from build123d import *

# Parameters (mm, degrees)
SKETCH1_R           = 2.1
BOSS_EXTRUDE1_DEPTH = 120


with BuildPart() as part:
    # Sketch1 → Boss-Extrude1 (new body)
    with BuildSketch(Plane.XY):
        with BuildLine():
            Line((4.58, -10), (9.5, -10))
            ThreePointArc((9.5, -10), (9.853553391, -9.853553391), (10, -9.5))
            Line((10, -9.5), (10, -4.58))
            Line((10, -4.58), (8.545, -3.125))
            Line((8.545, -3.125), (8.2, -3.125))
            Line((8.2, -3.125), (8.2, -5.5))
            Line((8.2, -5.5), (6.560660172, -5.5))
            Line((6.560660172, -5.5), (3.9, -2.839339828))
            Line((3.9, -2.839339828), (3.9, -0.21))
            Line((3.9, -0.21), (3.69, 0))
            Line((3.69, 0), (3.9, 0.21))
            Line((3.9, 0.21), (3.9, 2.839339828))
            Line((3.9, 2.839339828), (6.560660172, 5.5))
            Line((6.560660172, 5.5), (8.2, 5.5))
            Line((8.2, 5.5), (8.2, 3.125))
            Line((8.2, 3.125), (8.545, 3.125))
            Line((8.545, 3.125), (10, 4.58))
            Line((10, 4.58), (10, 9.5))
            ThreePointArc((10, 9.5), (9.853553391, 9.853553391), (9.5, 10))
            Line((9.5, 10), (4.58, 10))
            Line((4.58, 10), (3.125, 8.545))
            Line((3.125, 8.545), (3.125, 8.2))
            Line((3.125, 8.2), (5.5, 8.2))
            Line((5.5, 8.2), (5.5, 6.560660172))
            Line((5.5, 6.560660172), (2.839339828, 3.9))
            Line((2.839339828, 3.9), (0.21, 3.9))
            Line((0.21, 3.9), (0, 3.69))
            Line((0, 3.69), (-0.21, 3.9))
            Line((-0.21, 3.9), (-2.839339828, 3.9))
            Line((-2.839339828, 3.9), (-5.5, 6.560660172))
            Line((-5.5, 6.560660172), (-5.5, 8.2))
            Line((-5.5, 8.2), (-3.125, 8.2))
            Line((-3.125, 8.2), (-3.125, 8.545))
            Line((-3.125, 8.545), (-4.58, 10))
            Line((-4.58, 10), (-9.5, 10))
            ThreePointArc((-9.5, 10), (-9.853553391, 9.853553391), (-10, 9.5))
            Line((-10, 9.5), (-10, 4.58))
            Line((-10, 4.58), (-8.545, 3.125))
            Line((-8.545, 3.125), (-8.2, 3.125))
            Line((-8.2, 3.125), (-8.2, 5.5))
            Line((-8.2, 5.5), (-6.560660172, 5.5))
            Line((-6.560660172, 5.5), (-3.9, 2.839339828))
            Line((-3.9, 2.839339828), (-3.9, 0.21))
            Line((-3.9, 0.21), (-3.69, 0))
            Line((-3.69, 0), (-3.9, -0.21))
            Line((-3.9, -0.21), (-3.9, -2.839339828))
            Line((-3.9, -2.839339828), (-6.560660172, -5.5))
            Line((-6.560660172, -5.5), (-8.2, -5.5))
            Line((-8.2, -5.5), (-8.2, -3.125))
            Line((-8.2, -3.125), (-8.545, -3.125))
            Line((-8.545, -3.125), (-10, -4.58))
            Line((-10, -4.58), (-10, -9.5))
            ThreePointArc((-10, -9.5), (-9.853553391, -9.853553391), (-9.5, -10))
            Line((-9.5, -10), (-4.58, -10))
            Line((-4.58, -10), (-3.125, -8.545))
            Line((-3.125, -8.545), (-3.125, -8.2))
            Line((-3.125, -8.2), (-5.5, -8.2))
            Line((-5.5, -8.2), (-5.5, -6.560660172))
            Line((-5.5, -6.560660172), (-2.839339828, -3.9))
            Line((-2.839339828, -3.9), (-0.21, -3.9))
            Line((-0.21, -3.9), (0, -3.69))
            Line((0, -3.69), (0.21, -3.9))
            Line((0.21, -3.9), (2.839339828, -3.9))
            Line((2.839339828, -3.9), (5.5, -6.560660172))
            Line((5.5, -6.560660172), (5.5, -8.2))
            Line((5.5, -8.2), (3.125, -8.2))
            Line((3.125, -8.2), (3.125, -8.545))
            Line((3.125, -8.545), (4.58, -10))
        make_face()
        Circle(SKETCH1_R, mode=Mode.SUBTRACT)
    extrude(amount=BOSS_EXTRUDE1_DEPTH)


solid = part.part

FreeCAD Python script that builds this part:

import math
import FreeCAD as App
import Part
import Sketcher
Q = App.Units.Quantity

doc = App.newDocument("Part")
body = doc.addObject("PartDesign::Body", "Body")

# Sketch on XY plane
sketch1 = body.newObject("Sketcher::SketchObject", "Sketch")
sketch1.AttachmentSupport = (doc.getObject("XY_Plane"), [""])
sketch1.MapMode = "FlatFace"
sketch1.addGeometry(Part.LineSegment(App.Vector(4.58, -10, 0), App.Vector(9.5, -10, 0)), False)
sketch1.addGeometry(Part.ArcOfCircle(Part.Circle(App.Vector(9.5, -9.5, 0), App.Vector(0, 0, 1), 0.5), math.radians(-90), math.radians(0)), False)
sketch1.addGeometry(Part.LineSegment(App.Vector(10, -9.5, 0), App.Vector(10, -4.58, 0)), False)
sketch1.addGeometry(Part.LineSegment(App.Vector(10, -4.58, 0), App.Vector(8.545, -3.125, 0)), False)
sketch1.addGeometry(Part.LineSegment(App.Vector(8.545, -3.125, 0), App.Vector(8.2, -3.125, 0)), False)
sketch1.addGeometry(Part.LineSegment(App.Vector(8.2, -3.125, 0), App.Vector(8.2, -5.5, 0)), False)
sketch1.addGeometry(Part.LineSegment(App.Vector(8.2, -5.5, 0), App.Vector(6.56066, -5.5, 0)), False)
sketch1.addGeometry(Part.LineSegment(App.Vector(6.56066, -5.5, 0), App.Vector(3.9, -2.83934, 0)), False)
sketch1.addGeometry(Part.LineSegment(App.Vector(3.9, -2.83934, 0), App.Vector(3.9, -0.21, 0)), False)
sketch1.addGeometry(Part.LineSegment(App.Vector(3.9, -0.21, 0), App.Vector(3.69, 0, 0)), False)
sketch1.addGeometry(Part.LineSegment(App.Vector(3.69, 0, 0), App.Vector(3.9, 0.21, 0)), False)
sketch1.addGeometry(Part.LineSegment(App.Vector(3.9, 0.21, 0), App.Vector(3.9, 2.83934, 0)), False)
sketch1.addGeometry(Part.LineSegment(App.Vector(3.9, 2.83934, 0), App.Vector(6.56066, 5.5, 0)), False)
sketch1.addGeometry(Part.LineSegment(App.Vector(6.56066, 5.5, 0), App.Vector(8.2, 5.5, 0)), False)
sketch1.addGeometry(Part.LineSegment(App.Vector(8.2, 5.5, 0), App.Vector(8.2, 3.125, 0)), False)
sketch1.addGeometry(Part.LineSegment(App.Vector(8.2, 3.125, 0), App.Vector(8.545, 3.125, 0)), False)
sketch1.addGeometry(Part.LineSegment(App.Vector(8.545, 3.125, 0), App.Vector(10, 4.58, 0)), False)
sketch1.addGeometry(Part.LineSegment(App.Vector(10, 4.58, 0), App.Vector(10, 9.5, 0)), False)
sketch1.addGeometry(Part.ArcOfCircle(Part.Circle(App.Vector(9.5, 9.5, 0), App.Vector(0, 0, 1), 0.5), math.radians(0), math.radians(90)), False)
sketch1.addGeometry(Part.LineSegment(App.Vector(9.5, 10, 0), App.Vector(4.58, 10, 0)), False)
sketch1.addGeometry(Part.LineSegment(App.Vector(4.58, 10, 0), App.Vector(3.125, 8.545, 0)), False)
sketch1.addGeometry(Part.LineSegment(App.Vector(3.125, 8.545, 0), App.Vector(3.125, 8.2, 0)), False)
sketch1.addGeometry(Part.LineSegment(App.Vector(3.125, 8.2, 0), App.Vector(5.5, 8.2, 0)), False)
sketch1.addGeometry(Part.LineSegment(App.Vector(5.5, 8.2, 0), App.Vector(5.5, 6.56066, 0)), False)
sketch1.addGeometry(Part.LineSegment(App.Vector(5.5, 6.56066, 0), App.Vector(2.83934, 3.9, 0)), False)
sketch1.addGeometry(Part.LineSegment(App.Vector(2.83934, 3.9, 0), App.Vector(0.21, 3.9, 0)), False)
sketch1.addGeometry(Part.LineSegment(App.Vector(0.21, 3.9, 0), App.Vector(0, 3.69, 0)), False)
sketch1.addGeometry(Part.LineSegment(App.Vector(0, 3.69, 0), App.Vector(-0.21, 3.9, 0)), False)
sketch1.addGeometry(Part.LineSegment(App.Vector(-0.21, 3.9, 0), App.Vector(-2.83934, 3.9, 0)), False)
sketch1.addGeometry(Part.LineSegment(App.Vector(-2.83934, 3.9, 0), App.Vector(-5.5, 6.56066, 0)), False)
sketch1.addGeometry(Part.LineSegment(App.Vector(-5.5, 6.56066, 0), App.Vector(-5.5, 8.2, 0)), False)
sketch1.addGeometry(Part.LineSegment(App.Vector(-5.5, 8.2, 0), App.Vector(-3.125, 8.2, 0)), False)
sketch1.addGeometry(Part.LineSegment(App.Vector(-3.125, 8.2, 0), App.Vector(-3.125, 8.545, 0)), False)
sketch1.addGeometry(Part.LineSegment(App.Vector(-3.125, 8.545, 0), App.Vector(-4.58, 10, 0)), False)
sketch1.addGeometry(Part.LineSegment(App.Vector(-4.58, 10, 0), App.Vector(-9.5, 10, 0)), False)
sketch1.addGeometry(Part.ArcOfCircle(Part.Circle(App.Vector(-9.5, 9.5, 0), App.Vector(0, 0, 1), 0.5), math.radians(90), math.radians(180)), False)
sketch1.addGeometry(Part.LineSegment(App.Vector(-10, 9.5, 0), App.Vector(-10, 4.58, 0)), False)
sketch1.addGeometry(Part.LineSegment(App.Vector(-10, 4.58, 0), App.Vector(-8.545, 3.125, 0)), False)
sketch1.addGeometry(Part.LineSegment(App.Vector(-8.545, 3.125, 0), App.Vector(-8.2, 3.125, 0)), False)
sketch1.addGeometry(Part.LineSegment(App.Vector(-8.2, 3.125, 0), App.Vector(-8.2, 5.5, 0)), False)
sketch1.addGeometry(Part.LineSegment(App.Vector(-8.2, 5.5, 0), App.Vector(-6.56066, 5.5, 0)), False)
sketch1.addGeometry(Part.LineSegment(App.Vector(-6.56066, 5.5, 0), App.Vector(-3.9, 2.83934, 0)), False)
sketch1.addGeometry(Part.LineSegment(App.Vector(-3.9, 2.83934, 0), App.Vector(-3.9, 0.21, 0)), False)
sketch1.addGeometry(Part.LineSegment(App.Vector(-3.9, 0.21, 0), App.Vector(-3.69, 0, 0)), False)
sketch1.addGeometry(Part.LineSegment(App.Vector(-3.69, 0, 0), App.Vector(-3.9, -0.21, 0)), False)
sketch1.addGeometry(Part.LineSegment(App.Vector(-3.9, -0.21, 0), App.Vector(-3.9, -2.83934, 0)), False)
sketch1.addGeometry(Part.LineSegment(App.Vector(-3.9, -2.83934, 0), App.Vector(-6.56066, -5.5, 0)), False)
sketch1.addGeometry(Part.LineSegment(App.Vector(-6.56066, -5.5, 0), App.Vector(-8.2, -5.5, 0)), False)
sketch1.addGeometry(Part.LineSegment(App.Vector(-8.2, -5.5, 0), App.Vector(-8.2, -3.125, 0)), False)
sketch1.addGeometry(Part.LineSegment(App.Vector(-8.2, -3.125, 0), App.Vector(-8.545, -3.125, 0)), False)
sketch1.addGeometry(Part.LineSegment(App.Vector(-8.545, -3.125, 0), App.Vector(-10, -4.58, 0)), False)
sketch1.addGeometry(Part.LineSegment(App.Vector(-10, -4.58, 0), App.Vector(-10, -9.5, 0)), False)
sketch1.addGeometry(Part.ArcOfCircle(Part.Circle(App.Vector(-9.5, -9.5, 0), App.Vector(0, 0, 1), 0.5), math.radians(180), math.radians(270)), False)
sketch1.addGeometry(Part.LineSegment(App.Vector(-9.5, -10, 0), App.Vector(-4.58, -10, 0)), False)
sketch1.addGeometry(Part.LineSegment(App.Vector(-4.58, -10, 0), App.Vector(-3.125, -8.545, 0)), False)
sketch1.addGeometry(Part.LineSegment(App.Vector(-3.125, -8.545, 0), App.Vector(-3.125, -8.2, 0)), False)
sketch1.addGeometry(Part.LineSegment(App.Vector(-3.125, -8.2, 0), App.Vector(-5.5, -8.2, 0)), False)
sketch1.addGeometry(Part.LineSegment(App.Vector(-5.5, -8.2, 0), App.Vector(-5.5, -6.56066, 0)), False)
sketch1.addGeometry(Part.LineSegment(App.Vector(-5.5, -6.56066, 0), App.Vector(-2.83934, -3.9, 0)), False)
sketch1.addGeometry(Part.LineSegment(App.Vector(-2.83934, -3.9, 0), App.Vector(-0.21, -3.9, 0)), False)
sketch1.addGeometry(Part.LineSegment(App.Vector(-0.21, -3.9, 0), App.Vector(0, -3.69, 0)), False)
sketch1.addGeometry(Part.LineSegment(App.Vector(0, -3.69, 0), App.Vector(0.21, -3.9, 0)), False)
sketch1.addGeometry(Part.LineSegment(App.Vector(0.21, -3.9, 0), App.Vector(2.83934, -3.9, 0)), False)
sketch1.addGeometry(Part.LineSegment(App.Vector(2.83934, -3.9, 0), App.Vector(5.5, -6.56066, 0)), False)
sketch1.addGeometry(Part.LineSegment(App.Vector(5.5, -6.56066, 0), App.Vector(5.5, -8.2, 0)), False)
sketch1.addGeometry(Part.LineSegment(App.Vector(5.5, -8.2, 0), App.Vector(3.125, -8.2, 0)), False)
sketch1.addGeometry(Part.LineSegment(App.Vector(3.125, -8.2, 0), App.Vector(3.125, -8.545, 0)), False)
sketch1.addGeometry(Part.LineSegment(App.Vector(3.125, -8.545, 0), App.Vector(4.58, -10, 0)), False)
sketch1.addGeometry(Part.Circle(App.Vector(0, 0, 0), App.Vector(0, 0, 1), 2.1), False)
sketch1.addConstraint(Sketcher.Constraint("Tangent", 0, 2, 1, 1))
sketch1.addConstraint(Sketcher.Constraint("Tangent", 1, 2, 2, 1))
sketch1.addConstraint(Sketcher.Constraint("Coincident", 2, 2, 3, 1))
sketch1.addConstraint(Sketcher.Constraint("Coincident", 3, 2, 4, 1))
sketch1.addConstraint(Sketcher.Constraint("Coincident", 4, 2, 5, 1))
sketch1.addConstraint(Sketcher.Constraint("Coincident", 5, 2, 6, 1))
sketch1.addConstraint(Sketcher.Constraint("Coincident", 6, 2, 7, 1))
sketch1.addConstraint(Sketcher.Constraint("Coincident", 7, 2, 8, 1))
sketch1.addConstraint(Sketcher.Constraint("Coincident", 8, 2, 9, 1))
sketch1.addConstraint(Sketcher.Constraint("Coincident", 9, 2, 10, 1))
sketch1.addConstraint(Sketcher.Constraint("Coincident", 10, 2, 11, 1))
sketch1.addConstraint(Sketcher.Constraint("Coincident", 11, 2, 12, 1))
sketch1.addConstraint(Sketcher.Constraint("Coincident", 12, 2, 13, 1))
sketch1.addConstraint(Sketcher.Constraint("Coincident", 13, 2, 14, 1))
sketch1.addConstraint(Sketcher.Constraint("Coincident", 14, 2, 15, 1))
sketch1.addConstraint(Sketcher.Constraint("Coincident", 15, 2, 16, 1))
sketch1.addConstraint(Sketcher.Constraint("Coincident", 16, 2, 17, 1))
sketch1.addConstraint(Sketcher.Constraint("Tangent", 17, 2, 18, 1))
sketch1.addConstraint(Sketcher.Constraint("Tangent", 18, 2, 19, 1))
sketch1.addConstraint(Sketcher.Constraint("Coincident", 19, 2, 20, 1))
sketch1.addConstraint(Sketcher.Constraint("Coincident", 20, 2, 21, 1))
sketch1.addConstraint(Sketcher.Constraint("Coincident", 21, 2, 22, 1))
sketch1.addConstraint(Sketcher.Constraint("Coincident", 22, 2, 23, 1))
sketch1.addConstraint(Sketcher.Constraint("Coincident", 23, 2, 24, 1))
sketch1.addConstraint(Sketcher.Constraint("Coincident", 24, 2, 25, 1))
sketch1.addConstraint(Sketcher.Constraint("Coincident", 25, 2, 26, 1))
sketch1.addConstraint(Sketcher.Constraint("Coincident", 26, 2, 27, 1))
sketch1.addConstraint(Sketcher.Constraint("Coincident", 27, 2, 28, 1))
sketch1.addConstraint(Sketcher.Constraint("Coincident", 28, 2, 29, 1))
sketch1.addConstraint(Sketcher.Constraint("Coincident", 29, 2, 30, 1))
sketch1.addConstraint(Sketcher.Constraint("Coincident", 30, 2, 31, 1))
sketch1.addConstraint(Sketcher.Constraint("Coincident", 31, 2, 32, 1))
sketch1.addConstraint(Sketcher.Constraint("Coincident", 32, 2, 33, 1))
sketch1.addConstraint(Sketcher.Constraint("Coincident", 33, 2, 34, 1))
sketch1.addConstraint(Sketcher.Constraint("Tangent", 34, 2, 35, 1))
sketch1.addConstraint(Sketcher.Constraint("Tangent", 35, 2, 36, 1))
sketch1.addConstraint(Sketcher.Constraint("Coincident", 36, 2, 37, 1))
sketch1.addConstraint(Sketcher.Constraint("Coincident", 37, 2, 38, 1))
sketch1.addConstraint(Sketcher.Constraint("Coincident", 38, 2, 39, 1))
sketch1.addConstraint(Sketcher.Constraint("Coincident", 39, 2, 40, 1))
sketch1.addConstraint(Sketcher.Constraint("Coincident", 40, 2, 41, 1))
sketch1.addConstraint(Sketcher.Constraint("Coincident", 41, 2, 42, 1))
sketch1.addConstraint(Sketcher.Constraint("Coincident", 42, 2, 43, 1))
sketch1.addConstraint(Sketcher.Constraint("Coincident", 43, 2, 44, 1))
sketch1.addConstraint(Sketcher.Constraint("Coincident", 44, 2, 45, 1))
sketch1.addConstraint(Sketcher.Constraint("Coincident", 45, 2, 46, 1))
sketch1.addConstraint(Sketcher.Constraint("Coincident", 46, 2, 47, 1))
sketch1.addConstraint(Sketcher.Constraint("Coincident", 47, 2, 48, 1))
sketch1.addConstraint(Sketcher.Constraint("Coincident", 48, 2, 49, 1))
sketch1.addConstraint(Sketcher.Constraint("Coincident", 49, 2, 50, 1))
sketch1.addConstraint(Sketcher.Constraint("Coincident", 50, 2, 51, 1))
sketch1.addConstraint(Sketcher.Constraint("Tangent", 51, 2, 52, 1))
sketch1.addConstraint(Sketcher.Constraint("Tangent", 52, 2, 53, 1))
sketch1.addConstraint(Sketcher.Constraint("Coincident", 53, 2, 54, 1))
sketch1.addConstraint(Sketcher.Constraint("Coincident", 54, 2, 55, 1))
sketch1.addConstraint(Sketcher.Constraint("Coincident", 55, 2, 56, 1))
sketch1.addConstraint(Sketcher.Constraint("Coincident", 56, 2, 57, 1))
sketch1.addConstraint(Sketcher.Constraint("Coincident", 57, 2, 58, 1))
sketch1.addConstraint(Sketcher.Constraint("Coincident", 58, 2, 59, 1))
sketch1.addConstraint(Sketcher.Constraint("Coincident", 59, 2, 60, 1))
sketch1.addConstraint(Sketcher.Constraint("Coincident", 60, 2, 61, 1))
sketch1.addConstraint(Sketcher.Constraint("Coincident", 61, 2, 62, 1))
sketch1.addConstraint(Sketcher.Constraint("Coincident", 62, 2, 63, 1))
sketch1.addConstraint(Sketcher.Constraint("Coincident", 63, 2, 64, 1))
sketch1.addConstraint(Sketcher.Constraint("Coincident", 64, 2, 65, 1))
sketch1.addConstraint(Sketcher.Constraint("Coincident", 65, 2, 66, 1))
sketch1.addConstraint(Sketcher.Constraint("Coincident", 66, 2, 67, 1))
sketch1.addConstraint(Sketcher.Constraint("Coincident", 67, 2, 0, 1))
sketch1.addConstraint(Sketcher.Constraint("Horizontal", 0))
sketch1.addConstraint(Sketcher.Constraint("Vertical", 2))
sketch1.addConstraint(Sketcher.Constraint("Horizontal", 4))
sketch1.addConstraint(Sketcher.Constraint("Vertical", 5))
sketch1.addConstraint(Sketcher.Constraint("Horizontal", 6))
sketch1.addConstraint(Sketcher.Constraint("Vertical", 8))
sketch1.addConstraint(Sketcher.Constraint("Vertical", 11))
sketch1.addConstraint(Sketcher.Constraint("Horizontal", 13))
sketch1.addConstraint(Sketcher.Constraint("Vertical", 14))
sketch1.addConstraint(Sketcher.Constraint("Horizontal", 15))
sketch1.addConstraint(Sketcher.Constraint("Vertical", 17))
sketch1.addConstraint(Sketcher.Constraint("Horizontal", 19))
sketch1.addConstraint(Sketcher.Constraint("Vertical", 21))
sketch1.addConstraint(Sketcher.Constraint("Horizontal", 22))
sketch1.addConstraint(Sketcher.Constraint("Vertical", 23))
sketch1.addConstraint(Sketcher.Constraint("Horizontal", 25))
sketch1.addConstraint(Sketcher.Constraint("Horizontal", 28))
sketch1.addConstraint(Sketcher.Constraint("Vertical", 30))
sketch1.addConstraint(Sketcher.Constraint("Horizontal", 31))
sketch1.addConstraint(Sketcher.Constraint("Vertical", 32))
sketch1.addConstraint(Sketcher.Constraint("Horizontal", 34))
sketch1.addConstraint(Sketcher.Constraint("Vertical", 36))
sketch1.addConstraint(Sketcher.Constraint("Horizontal", 38))
sketch1.addConstraint(Sketcher.Constraint("Vertical", 39))
sketch1.addConstraint(Sketcher.Constraint("Horizontal", 40))
sketch1.addConstraint(Sketcher.Constraint("Vertical", 42))
sketch1.addConstraint(Sketcher.Constraint("Vertical", 45))
sketch1.addConstraint(Sketcher.Constraint("Horizontal", 47))
sketch1.addConstraint(Sketcher.Constraint("Vertical", 48))
sketch1.addConstraint(Sketcher.Constraint("Horizontal", 49))
sketch1.addConstraint(Sketcher.Constraint("Vertical", 51))
sketch1.addConstraint(Sketcher.Constraint("Horizontal", 53))
sketch1.addConstraint(Sketcher.Constraint("Vertical", 55))
sketch1.addConstraint(Sketcher.Constraint("Horizontal", 56))
sketch1.addConstraint(Sketcher.Constraint("Vertical", 57))
sketch1.addConstraint(Sketcher.Constraint("Horizontal", 59))
sketch1.addConstraint(Sketcher.Constraint("Horizontal", 62))
sketch1.addConstraint(Sketcher.Constraint("Vertical", 64))
sketch1.addConstraint(Sketcher.Constraint("Horizontal", 65))
sketch1.addConstraint(Sketcher.Constraint("Vertical", 66))
sketch1.addConstraint(Sketcher.Constraint("Coincident", 68, 3, -1, 1))
sketch1.addConstraint(Sketcher.Constraint("Equal", 1, 18))
sketch1.addConstraint(Sketcher.Constraint("Equal", 18, 35))
sketch1.addConstraint(Sketcher.Constraint("Equal", 35, 52))
sketch1.addConstraint(Sketcher.Constraint("Symmetric", 1, 3, 35, 3, -1, 1))
sketch1.addConstraint(Sketcher.Constraint("Symmetric", 18, 3, 52, 3, -1, 1))
sketch1.addConstraint(Sketcher.Constraint("Symmetric", 3, 2, 37, 2, -1, 1))
sketch1.addConstraint(Sketcher.Constraint("Symmetric", 5, 2, 39, 2, -1, 1))
sketch1.addConstraint(Sketcher.Constraint("Symmetric", 7, 2, 41, 2, -1, 1))
sketch1.addConstraint(Sketcher.Constraint("Symmetric", 9, 2, 43, 2, -1, 1))
sketch1.addConstraint(Sketcher.Constraint("Symmetric", 10, 2, 44, 2, -1, 1))
sketch1.addConstraint(Sketcher.Constraint("Symmetric", 12, 2, 46, 2, -1, 1))
sketch1.addConstraint(Sketcher.Constraint("Symmetric", 14, 2, 48, 2, -1, 1))
sketch1.addConstraint(Sketcher.Constraint("Symmetric", 20, 2, 54, 2, -1, 1))
sketch1.addConstraint(Sketcher.Constraint("Symmetric", 22, 2, 56, 2, -1, 1))
sketch1.addConstraint(Sketcher.Constraint("Symmetric", 24, 2, 58, 2, -1, 1))
sketch1.addConstraint(Sketcher.Constraint("Symmetric", 26, 2, 60, 2, -1, 1))
sketch1.addConstraint(Sketcher.Constraint("Symmetric", 27, 2, 61, 2, -1, 1))
sketch1.addConstraint(Sketcher.Constraint("Symmetric", 29, 2, 63, 2, -1, 1))
sketch1.addConstraint(Sketcher.Constraint("Symmetric", 31, 2, 65, 2, -1, 1))
sketch1.addConstraint(Sketcher.Constraint("Symmetric", 18, 3, 35, 3, -2))
sketch1.addConstraint(Sketcher.Constraint("Symmetric", 25, 2, 27, 2, -2))
sketch1.addConstraint(Sketcher.Constraint("Symmetric", 23, 2, 29, 2, -2))
sketch1.addConstraint(Sketcher.Constraint("Symmetric", 21, 2, 31, 2, -2))
sketch1.addConstraint(Sketcher.Constraint("Symmetric", 15, 2, 37, 2, -2))
sketch1.addConstraint(Sketcher.Constraint("Symmetric", 13, 2, 39, 2, -2))
sketch1.addConstraint(Sketcher.Constraint("Symmetric", 11, 2, 41, 2, -2))
sketch1.addConstraint(Sketcher.Constraint("PointOnObject", 9, 2, -1))
sketch1.addConstraint(Sketcher.Constraint("PointOnObject", 26, 2, -2))
sketch1.addConstraint(Sketcher.Constraint("Parallel", 3, 7))
sketch1.addConstraint(Sketcher.Constraint("Parallel", 7, 9))
sketch1.addConstraint(Sketcher.Constraint("Perpendicular", 9, 10))
sketch1.addConstraint(Sketcher.Constraint("Parallel", 10, 12))
sketch1.addConstraint(Sketcher.Constraint("Parallel", 12, 16))
sketch1.addConstraint(Sketcher.Constraint("Parallel", 16, 20))
sketch1.addConstraint(Sketcher.Constraint("Parallel", 20, 24))
sketch1.addConstraint(Sketcher.Constraint("Parallel", 24, 26))
sketch1.addConstraint(Sketcher.Constraint("Perpendicular", 26, 27))
sketch1.addConstraint(Sketcher.Constraint("Parallel", 27, 29))
sketch1.addConstraint(Sketcher.Constraint("Parallel", 29, 33))
sketch1.addConstraint(Sketcher.Constraint("Parallel", 33, 37))
sketch1.addConstraint(Sketcher.Constraint("Parallel", 37, 41))
sketch1.addConstraint(Sketcher.Constraint("Parallel", 41, 43))
sketch1.addConstraint(Sketcher.Constraint("Parallel", 44, 46))
sketch1.addConstraint(Sketcher.Constraint("Parallel", 46, 50))
sketch1.addConstraint(Sketcher.Constraint("Parallel", 50, 54))
sketch1.addConstraint(Sketcher.Constraint("Parallel", 54, 58))
sketch1.addConstraint(Sketcher.Constraint("Parallel", 58, 60))
sketch1.addConstraint(Sketcher.Constraint("Parallel", 61, 63))
sketch1.addConstraint(Sketcher.Constraint("Parallel", 63, 67))
sketch1.addConstraint(Sketcher.Constraint("Horizontal", 20, 2, 32, 2))
sketch1.addConstraint(Sketcher.Constraint("Horizontal", 2, 2, 50, 2))
sketch1.addConstraint(Sketcher.Constraint("Horizontal", 54, 2, 66, 2))
sketch1.addConstraint(Sketcher.Constraint("Equal", 53, 2))
sketch1.addConstraint(Sketcher.Constraint("Equal", 65, 5))
sketch1.addConstraint(Sketcher.Constraint("Equal", 62, 8))
sketch1.addConstraint(Sketcher.Constraint("Equal", 49, 21))
sketch1.addConstraint(Sketcher.Constraint("Equal", 47, 23))
sketch1.addConstraint(Sketcher.Constraint("Equal", 16, 20))
sketch1.addConstraint(Sketcher.Constraint("Equal", 12, 24))
sketch1.addConstraint(Sketcher.Constraint("Equal", 10, 26))
sketch1.addConstraint(Sketcher.Constraint("Diameter", 68, Q("4.2 mm")))
sketch1.addConstraint(Sketcher.Constraint("Radius", 1, Q("0.5 mm")))
sketch1.addConstraint(Sketcher.Constraint("DistanceY", 0, 2, -1, 1, Q("10 mm")))
sketch1.addConstraint(Sketcher.Constraint("DistanceX", 0, 1, 0, 2, Q("4.92 mm")))
sketch1.addConstraint(Sketcher.Constraint("DistanceX", -1, 1, 4, 2, Q("8.2 mm")))
sketch1.addConstraint(Sketcher.Constraint("DistanceY", 5, 2, -1, 1, Q("5.5 mm")))
sketch1.addConstraint(Sketcher.Constraint("DistanceX", -1, 1, 7, 2, Q("3.9 mm")))
sketch1.addConstraint(Sketcher.Constraint("DistanceX", 4, 2, 4, 1, Q("0.345 mm")))
sketch1.addConstraint(Sketcher.Constraint("DistanceY", 8, 2, -1, 1, Q("0.21 mm")))
sketch1.addConstraint(Sketcher.Constraint("DistanceX", 6, 2, 6, 1, Q("1.63934 mm")))
pad1 = body.newObject("PartDesign::Pad", "Pad")
pad1.Profile = sketch1
pad1.Length = 120

doc.recompute()
